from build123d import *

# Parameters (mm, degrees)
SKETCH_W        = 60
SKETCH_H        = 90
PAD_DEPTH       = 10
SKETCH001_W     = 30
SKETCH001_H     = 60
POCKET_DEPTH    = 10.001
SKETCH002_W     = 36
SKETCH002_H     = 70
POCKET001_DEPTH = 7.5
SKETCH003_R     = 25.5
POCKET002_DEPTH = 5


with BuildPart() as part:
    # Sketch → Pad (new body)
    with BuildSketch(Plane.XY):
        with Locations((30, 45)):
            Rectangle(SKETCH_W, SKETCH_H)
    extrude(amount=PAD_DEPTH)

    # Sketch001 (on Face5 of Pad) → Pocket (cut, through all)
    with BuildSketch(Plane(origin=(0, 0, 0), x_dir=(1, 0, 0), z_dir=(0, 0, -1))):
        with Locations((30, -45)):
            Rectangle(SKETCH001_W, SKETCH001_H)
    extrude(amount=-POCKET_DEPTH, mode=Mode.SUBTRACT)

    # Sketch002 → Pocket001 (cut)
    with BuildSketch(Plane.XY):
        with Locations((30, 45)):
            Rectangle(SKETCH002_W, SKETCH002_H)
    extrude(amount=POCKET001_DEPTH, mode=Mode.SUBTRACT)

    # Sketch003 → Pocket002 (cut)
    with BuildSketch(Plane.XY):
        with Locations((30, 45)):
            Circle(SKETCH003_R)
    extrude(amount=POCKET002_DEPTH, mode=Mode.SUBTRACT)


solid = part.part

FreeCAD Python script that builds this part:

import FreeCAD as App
import Part
import Sketcher
Q = App.Units.Quantity


def add_polygon(sketch, points):
    """Adds a closed chain of lines whose ends are joined by coincident constraints."""
    first, n = sketch.GeometryCount, len(points)
    for a, b in zip(points, points[1:] + points[:1]):
        sketch.addGeometry(Part.LineSegment(App.Vector(*a, 0), App.Vector(*b, 0)), False)
    for i in range(n):
        sketch.addConstraint(Sketcher.Constraint("Coincident", first + i, 2, first + (i + 1) % n, 1))

doc = App.newDocument("Part")
body = doc.addObject("PartDesign::Body", "Body")

sketch1 = doc.addObject("Sketcher::SketchObject", "Sketch")
body.addObject(sketch1)
sketch1.AttachmentSupport = (doc.XY_Plane, [""])
sketch1.MapMode = "FlatFace"
add_polygon(sketch1, [(0, 90), (0, 0), (60, 0), (60, 90)])
sketch1.addConstraint([
    Sketcher.Constraint("Vertical", 0),
    Sketcher.Constraint("Horizontal", 1),
    Sketcher.Constraint("Vertical", 2),
    Sketcher.Constraint("Horizontal", 3),
    Sketcher.Constraint("Coincident", 0, 2, -1, 1),
    Sketcher.Constraint("DistanceX", 1, 1, 1, 2, Q("60 mm")),
    Sketcher.Constraint("DistanceY", 0, 2, 0, 1, Q("90 mm")),
])
pad1 = doc.addObject("PartDesign::Pad", "Pad")
body.addObject(pad1)
pad1.Profile = sketch1
pad1.Length = 10

sketch2 = doc.addObject("Sketcher::SketchObject", "Sketch001")
body.addObject(sketch2)
sketch2.AttachmentSupport = (doc.XY_Plane, [""])
sketch2.MapMode = "FlatFace"
add_polygon(sketch2, [(15, 15), (15, 75), (45, 75), (45, 15)])
sketch2.addConstraint([
    Sketcher.Constraint("Vertical", 0),
    Sketcher.Constraint("Horizontal", 1),
    Sketcher.Constraint("Vertical", 2),
    Sketcher.Constraint("Horizontal", 3),
    Sketcher.Constraint("DistanceX", 1, 1, 1, 2, Q("30 mm")),
    Sketcher.Constraint("DistanceY", 0, 1, 0, 2, Q("60 mm")),
    Sketcher.Constraint("DistanceX", -1, 1, 0, 2, Q("15 mm")),
    Sketcher.Constraint("DistanceY", -1, 1, 0, 2, Q("75 mm")),
])
pocket1 = doc.addObject("PartDesign::Pocket", "Pocket")
body.addObject(pocket1)
pocket1.Profile = sketch2
pocket1.Type = "ThroughAll"
pocket1.Reversed = True

sketch3 = doc.addObject("Sketcher::SketchObject", "Sketch002")
body.addObject(sketch3)
sketch3.AttachmentSupport = (doc.XY_Plane, [""])
sketch3.MapMode = "FlatFace"
add_polygon(sketch3, [(12, 80), (12, 10), (48, 10), (48, 80)])
sketch3.addConstraint([
    Sketcher.Constraint("Vertical", 0),
    Sketcher.Constraint("Horizontal", 1),
    Sketcher.Constraint("Vertical", 2),
    Sketcher.Constraint("Horizontal", 3),
    Sketcher.Constraint("DistanceX", 1, 1, 1, 2, Q("36 mm")),
    Sketcher.Constraint("DistanceY", 0, 2, 0, 1, Q("70 mm")),
    Sketcher.Constraint("DistanceX", -1, 1, 0, 2, Q("12 mm")),
    Sketcher.Constraint("DistanceY", -1, 1, 0, 2, Q("10 mm")),
])
pocket2 = doc.addObject("PartDesign::Pocket", "Pocket001")
body.addObject(pocket2)
pocket2.Profile = sketch3
pocket2.Length = 7.5
pocket2.Reversed = True

sketch4 = doc.addObject("Sketcher::SketchObject", "Sketch003")
body.addObject(sketch4)
sketch4.AttachmentSupport = (doc.XY_Plane, [""])
sketch4.MapMode = "FlatFace"
sketch4.addGeometry(Part.Circle(App.Vector(30, 45, 0), App.Vector(0, 0, 1), 26), False)
sketch4.addConstraint([
    Sketcher.Constraint("Diameter", 0, Q("51 mm")),
    Sketcher.Constraint("DistanceX", -1, 1, 0, 3, Q("30 mm")),
    Sketcher.Constraint("DistanceY", -1, 1, 0, 3, Q("45 mm")),
])
pocket3 = doc.addObject("PartDesign::Pocket", "Pocket002")
body.addObject(pocket3)
pocket3.Profile = sketch4
pocket3.Length = 5
pocket3.Reversed = True

doc.recompute()
